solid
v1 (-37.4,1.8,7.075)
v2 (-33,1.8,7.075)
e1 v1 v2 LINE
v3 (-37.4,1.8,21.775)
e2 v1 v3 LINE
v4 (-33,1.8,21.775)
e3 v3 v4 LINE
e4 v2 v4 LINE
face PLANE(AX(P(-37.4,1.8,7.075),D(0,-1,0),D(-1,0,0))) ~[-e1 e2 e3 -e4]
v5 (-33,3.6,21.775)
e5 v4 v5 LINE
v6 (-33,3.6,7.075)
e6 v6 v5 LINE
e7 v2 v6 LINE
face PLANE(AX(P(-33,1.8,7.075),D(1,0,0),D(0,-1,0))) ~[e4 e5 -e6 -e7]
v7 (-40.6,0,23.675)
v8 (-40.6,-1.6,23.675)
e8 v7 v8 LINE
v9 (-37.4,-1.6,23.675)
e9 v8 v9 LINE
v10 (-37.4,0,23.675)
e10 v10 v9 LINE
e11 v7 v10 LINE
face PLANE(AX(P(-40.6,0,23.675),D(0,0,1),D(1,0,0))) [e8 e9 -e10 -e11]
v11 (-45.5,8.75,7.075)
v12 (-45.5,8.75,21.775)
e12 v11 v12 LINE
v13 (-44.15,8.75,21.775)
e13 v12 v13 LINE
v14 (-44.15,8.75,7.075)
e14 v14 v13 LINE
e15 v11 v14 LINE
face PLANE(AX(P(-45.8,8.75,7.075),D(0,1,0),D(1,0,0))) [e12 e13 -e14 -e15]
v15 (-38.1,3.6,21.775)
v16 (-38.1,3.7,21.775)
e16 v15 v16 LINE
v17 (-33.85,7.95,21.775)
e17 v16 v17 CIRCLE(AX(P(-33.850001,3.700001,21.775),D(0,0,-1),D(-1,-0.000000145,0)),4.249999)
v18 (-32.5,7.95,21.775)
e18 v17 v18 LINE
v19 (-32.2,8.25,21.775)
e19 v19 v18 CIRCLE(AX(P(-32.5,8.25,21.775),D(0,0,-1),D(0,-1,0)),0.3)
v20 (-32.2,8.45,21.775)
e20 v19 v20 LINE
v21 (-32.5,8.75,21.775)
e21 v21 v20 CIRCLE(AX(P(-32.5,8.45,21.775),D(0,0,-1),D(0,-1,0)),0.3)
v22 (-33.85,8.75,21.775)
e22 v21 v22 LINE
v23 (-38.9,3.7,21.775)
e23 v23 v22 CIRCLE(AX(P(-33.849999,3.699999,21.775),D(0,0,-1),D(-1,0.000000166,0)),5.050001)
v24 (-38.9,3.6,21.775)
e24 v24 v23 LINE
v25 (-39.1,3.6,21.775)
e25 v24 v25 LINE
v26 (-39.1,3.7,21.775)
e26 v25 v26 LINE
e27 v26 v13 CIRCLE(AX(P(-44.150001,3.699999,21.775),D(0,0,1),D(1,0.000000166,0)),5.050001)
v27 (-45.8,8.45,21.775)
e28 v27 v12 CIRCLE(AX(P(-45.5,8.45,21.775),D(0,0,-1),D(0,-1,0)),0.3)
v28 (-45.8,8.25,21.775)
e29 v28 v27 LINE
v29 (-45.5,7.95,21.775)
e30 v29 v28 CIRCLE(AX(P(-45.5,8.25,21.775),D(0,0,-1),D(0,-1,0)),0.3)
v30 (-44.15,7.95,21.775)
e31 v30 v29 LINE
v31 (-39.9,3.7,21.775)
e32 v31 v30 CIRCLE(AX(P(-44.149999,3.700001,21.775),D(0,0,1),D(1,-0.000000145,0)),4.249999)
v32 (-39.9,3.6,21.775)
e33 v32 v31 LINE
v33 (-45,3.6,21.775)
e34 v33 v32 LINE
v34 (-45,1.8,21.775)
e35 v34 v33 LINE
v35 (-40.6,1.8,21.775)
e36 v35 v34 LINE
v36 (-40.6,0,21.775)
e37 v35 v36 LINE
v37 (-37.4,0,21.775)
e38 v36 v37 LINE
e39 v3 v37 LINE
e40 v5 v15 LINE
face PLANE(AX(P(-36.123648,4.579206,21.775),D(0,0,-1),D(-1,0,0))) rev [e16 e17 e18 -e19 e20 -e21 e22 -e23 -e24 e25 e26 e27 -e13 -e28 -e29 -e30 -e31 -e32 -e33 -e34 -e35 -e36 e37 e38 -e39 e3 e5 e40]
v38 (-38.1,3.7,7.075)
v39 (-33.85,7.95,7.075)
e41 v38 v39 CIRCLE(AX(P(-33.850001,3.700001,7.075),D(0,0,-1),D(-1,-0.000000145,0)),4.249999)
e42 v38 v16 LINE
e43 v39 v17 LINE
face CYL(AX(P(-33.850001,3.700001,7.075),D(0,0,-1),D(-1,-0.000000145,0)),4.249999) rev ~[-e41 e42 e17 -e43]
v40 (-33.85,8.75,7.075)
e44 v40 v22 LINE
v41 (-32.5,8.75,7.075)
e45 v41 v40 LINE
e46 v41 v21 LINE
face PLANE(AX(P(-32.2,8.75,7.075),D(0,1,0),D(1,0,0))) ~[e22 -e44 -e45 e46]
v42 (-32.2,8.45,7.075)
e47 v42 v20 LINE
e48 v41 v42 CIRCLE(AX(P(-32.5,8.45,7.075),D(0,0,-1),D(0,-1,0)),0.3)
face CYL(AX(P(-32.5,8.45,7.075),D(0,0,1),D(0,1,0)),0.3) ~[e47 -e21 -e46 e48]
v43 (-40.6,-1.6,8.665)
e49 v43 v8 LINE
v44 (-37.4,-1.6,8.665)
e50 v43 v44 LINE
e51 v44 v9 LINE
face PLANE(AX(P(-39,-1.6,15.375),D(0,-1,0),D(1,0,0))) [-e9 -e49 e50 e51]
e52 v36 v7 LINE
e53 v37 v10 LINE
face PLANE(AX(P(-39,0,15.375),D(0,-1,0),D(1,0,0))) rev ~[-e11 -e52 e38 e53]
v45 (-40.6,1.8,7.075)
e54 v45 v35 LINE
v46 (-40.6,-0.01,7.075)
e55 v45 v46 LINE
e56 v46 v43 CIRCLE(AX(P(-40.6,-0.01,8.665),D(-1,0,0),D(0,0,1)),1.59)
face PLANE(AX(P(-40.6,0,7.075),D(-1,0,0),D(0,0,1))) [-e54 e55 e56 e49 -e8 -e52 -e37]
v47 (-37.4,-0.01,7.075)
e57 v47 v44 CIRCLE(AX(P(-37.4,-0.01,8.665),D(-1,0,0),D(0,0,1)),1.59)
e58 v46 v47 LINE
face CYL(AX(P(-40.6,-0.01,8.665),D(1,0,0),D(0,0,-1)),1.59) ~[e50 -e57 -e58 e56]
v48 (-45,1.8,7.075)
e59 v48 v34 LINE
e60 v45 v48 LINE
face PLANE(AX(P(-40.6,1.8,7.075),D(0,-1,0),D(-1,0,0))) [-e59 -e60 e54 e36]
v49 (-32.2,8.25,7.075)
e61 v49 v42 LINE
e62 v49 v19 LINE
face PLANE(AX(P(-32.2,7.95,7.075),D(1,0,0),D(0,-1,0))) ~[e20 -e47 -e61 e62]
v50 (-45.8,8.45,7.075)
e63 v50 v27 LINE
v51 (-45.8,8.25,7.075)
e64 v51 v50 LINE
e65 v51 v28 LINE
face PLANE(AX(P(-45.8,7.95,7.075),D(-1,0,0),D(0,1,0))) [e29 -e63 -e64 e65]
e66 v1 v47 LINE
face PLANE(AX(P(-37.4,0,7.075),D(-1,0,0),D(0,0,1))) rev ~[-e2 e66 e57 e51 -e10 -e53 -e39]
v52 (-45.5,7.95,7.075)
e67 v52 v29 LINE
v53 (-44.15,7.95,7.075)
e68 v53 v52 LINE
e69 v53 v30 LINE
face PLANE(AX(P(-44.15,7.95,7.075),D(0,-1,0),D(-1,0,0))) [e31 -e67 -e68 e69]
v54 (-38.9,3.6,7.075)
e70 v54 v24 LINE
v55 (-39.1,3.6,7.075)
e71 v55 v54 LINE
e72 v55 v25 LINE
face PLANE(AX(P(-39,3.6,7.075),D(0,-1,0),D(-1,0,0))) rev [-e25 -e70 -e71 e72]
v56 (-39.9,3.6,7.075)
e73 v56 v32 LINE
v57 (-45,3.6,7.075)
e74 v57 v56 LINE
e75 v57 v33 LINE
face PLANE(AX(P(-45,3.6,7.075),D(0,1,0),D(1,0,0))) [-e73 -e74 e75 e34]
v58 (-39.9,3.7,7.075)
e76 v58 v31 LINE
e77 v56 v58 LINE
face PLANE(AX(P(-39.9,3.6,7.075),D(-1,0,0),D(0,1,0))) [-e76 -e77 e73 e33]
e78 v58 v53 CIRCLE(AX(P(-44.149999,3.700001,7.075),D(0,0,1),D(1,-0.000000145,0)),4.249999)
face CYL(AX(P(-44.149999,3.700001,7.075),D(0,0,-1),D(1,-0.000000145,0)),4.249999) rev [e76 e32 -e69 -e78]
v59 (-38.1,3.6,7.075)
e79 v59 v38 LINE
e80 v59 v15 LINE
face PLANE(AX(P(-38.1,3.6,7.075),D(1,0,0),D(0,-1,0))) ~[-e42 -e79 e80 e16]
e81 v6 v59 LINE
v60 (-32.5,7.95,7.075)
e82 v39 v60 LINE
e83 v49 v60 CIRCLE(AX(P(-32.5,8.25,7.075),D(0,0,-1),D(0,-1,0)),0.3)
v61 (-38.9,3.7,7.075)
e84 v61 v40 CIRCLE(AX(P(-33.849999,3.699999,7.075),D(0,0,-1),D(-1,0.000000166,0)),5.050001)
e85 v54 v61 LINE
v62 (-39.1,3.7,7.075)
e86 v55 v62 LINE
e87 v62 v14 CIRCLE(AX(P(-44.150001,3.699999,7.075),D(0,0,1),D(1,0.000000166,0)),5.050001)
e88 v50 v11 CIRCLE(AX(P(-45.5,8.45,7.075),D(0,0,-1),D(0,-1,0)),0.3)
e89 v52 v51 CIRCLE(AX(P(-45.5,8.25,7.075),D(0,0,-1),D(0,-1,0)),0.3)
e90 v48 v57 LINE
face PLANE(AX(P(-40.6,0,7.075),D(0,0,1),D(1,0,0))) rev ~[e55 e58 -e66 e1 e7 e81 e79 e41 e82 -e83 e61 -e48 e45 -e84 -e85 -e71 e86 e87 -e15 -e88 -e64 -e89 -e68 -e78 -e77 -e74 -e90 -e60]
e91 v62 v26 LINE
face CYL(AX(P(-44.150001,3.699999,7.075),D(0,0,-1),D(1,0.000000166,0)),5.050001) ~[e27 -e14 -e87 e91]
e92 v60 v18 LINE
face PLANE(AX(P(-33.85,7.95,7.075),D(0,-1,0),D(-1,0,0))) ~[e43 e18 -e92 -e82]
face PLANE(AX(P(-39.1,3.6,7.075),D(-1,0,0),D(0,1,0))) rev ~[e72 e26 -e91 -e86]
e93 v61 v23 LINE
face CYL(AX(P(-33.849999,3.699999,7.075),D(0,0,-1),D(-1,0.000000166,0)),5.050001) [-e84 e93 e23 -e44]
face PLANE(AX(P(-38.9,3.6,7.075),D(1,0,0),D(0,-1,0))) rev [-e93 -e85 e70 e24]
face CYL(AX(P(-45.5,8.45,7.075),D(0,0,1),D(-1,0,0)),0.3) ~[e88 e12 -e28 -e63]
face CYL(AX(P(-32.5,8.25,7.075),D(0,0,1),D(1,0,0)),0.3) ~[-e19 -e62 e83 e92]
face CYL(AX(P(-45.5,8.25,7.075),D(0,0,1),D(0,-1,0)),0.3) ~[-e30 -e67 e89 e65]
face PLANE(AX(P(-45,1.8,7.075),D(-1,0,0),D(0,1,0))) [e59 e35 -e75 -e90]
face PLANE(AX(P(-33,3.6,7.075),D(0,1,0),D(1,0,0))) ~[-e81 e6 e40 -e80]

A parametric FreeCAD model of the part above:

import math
import FreeCAD as App
import Part
import Sketcher


def edges_at(feature, points):
    """Names of the edges that pass closest to the given points."""
    edges = feature.Shape.Edges
    near = lambda p: min(range(len(edges)), key=lambda i: edges[i].distToShape(Part.Vertex(*p))[0])
    return sorted({f"Edge{near(p) + 1}" for p in points})

doc = App.newDocument("Part")
body = doc.addObject("PartDesign::Body", "Body")

sketch1 = doc.addObject("Sketcher::SketchObject", "Sketch")
body.addObject(sketch1)
sketch1.AttachmentSupport = (doc.XY_Plane, [""])
sketch1.MapMode = "FlatFace"
sketch1.addGeometry([
    Part.LineSegment(App.Vector(-6, 0, 0), App.Vector(-1.6, 0, 0)),
    Part.LineSegment(App.Vector(-1.6, 0, 0), App.Vector(-1.6, -1.8, 0)),
    Part.LineSegment(App.Vector(-1.6, -1.8, 0), App.Vector(0, -1.8, 0)),
    Part.LineSegment(App.Vector(0, -1.8, 0), App.Vector(0, 1.8, 0)),
    Part.LineSegment(App.Vector(0, 1.8, 0), App.Vector(-0.1, 1.8, 0)),
    Part.LineSegment(App.Vector(-0.1, 1.8, 0), App.Vector(-0.1, 1.9, 0)),
    Part.ArcOfCircle(Part.Circle(App.Vector(-5.15, 1.9, 0), App.Vector(0, 0, 1), 5.05), math.radians(0), math.radians(90)),
    Part.LineSegment(App.Vector(-5.15, 6.95, 0), App.Vector(-6.8, 6.95, 0)),
    Part.LineSegment(App.Vector(-6.8, 6.95, 0), App.Vector(-6.8, 6.15, 0)),
    Part.LineSegment(App.Vector(-6.8, 6.15, 0), App.Vector(-5.15, 6.15, 0)),
    Part.ArcOfCircle(Part.Circle(App.Vector(-5.15, 1.9, 0), App.Vector(0, 0, 1), 4.25), math.radians(0), math.radians(90)),
    Part.LineSegment(App.Vector(-0.9, 1.9, 0), App.Vector(-0.9, 1.8, 0)),
    Part.LineSegment(App.Vector(-0.9, 1.8, 0), App.Vector(-6, 1.8, 0)),
    Part.LineSegment(App.Vector(-6, 1.8, 0), App.Vector(-6, 0, 0)),
], False)
sketch1.addConstraint([
    Sketcher.Constraint("Coincident", 0, 2, 1, 1),
    Sketcher.Constraint("Coincident", 1, 2, 2, 1),
    Sketcher.Constraint("Coincident", 2, 2, 3, 1),
    Sketcher.Constraint("Coincident", 3, 2, 4, 1),
    Sketcher.Constraint("Coincident", 4, 2, 5, 1),
    Sketcher.Constraint("Tangent", 5, 2, 6, 1),
    Sketcher.Constraint("Tangent", 6, 2, 7, 1),
    Sketcher.Constraint("Coincident", 7, 2, 8, 1),
    Sketcher.Constraint("Coincident", 8, 2, 9, 1),
    Sketcher.Constraint("Tangent", 9, 2, 10, 2),
    Sketcher.Constraint("Tangent", 10, 1, 11, 1),
    Sketcher.Constraint("Coincident", 11, 2, 12, 1),
    Sketcher.Constraint("Coincident", 12, 2, 13, 1),
    Sketcher.Constraint("Coincident", 13, 2, 0, 1),
    Sketcher.Constraint("Horizontal", 0),
    Sketcher.Constraint("Vertical", 1),
    Sketcher.Constraint("Horizontal", 2),
    Sketcher.Constraint("Vertical", 3),
    Sketcher.Constraint("Horizontal", 4),
    Sketcher.Constraint("Vertical", 5),
    Sketcher.Constraint("Horizontal", 7),
    Sketcher.Constraint("Vertical", 8),
    Sketcher.Constraint("Horizontal", 9),
    Sketcher.Constraint("Vertical", 11),
    Sketcher.Constraint("Horizontal", 12),
    Sketcher.Constraint("Vertical", 13),
    Sketcher.Constraint("Coincident", 10, 3, 6, 3),
    Sketcher.Constraint("Symmetric", 2, 2, 3, 2, -1, 1),
    Sketcher.Constraint("PointOnObject", 0, 2, -1),
    Sketcher.Constraint("Horizontal", 4, 2, 11, 2),
    Sketcher.Constraint("Equal", 4, 5),
    Sketcher.Constraint("Radius", 6, 5.050001),
    Sketcher.Constraint("Radius", 10, 4.249999),
    Sketcher.Constraint("DistanceX", 0, 1, 0, 2, 4.4),
    Sketcher.Constraint("DistanceX", 2, 1, 2, 2, 1.6),
    Sketcher.Constraint("DistanceX", 4, 2, 4, 1, 0.1),
    Sketcher.Constraint("DistanceY", 1, 2, 1, 1, 1.8),
    Sketcher.Constraint("DistanceX", 7, 2, 7, 1, 1.65),
])
pad1 = doc.addObject("PartDesign::Pad", "Pad")
body.addObject(pad1)
pad1.Profile = sketch1
pad1.Length = 14.7
doc.recompute()

mirrored = doc.addObject("PartDesign::Mirrored", "Mirrored")
body.addObject(mirrored)
mirrored.Originals = [pad1]
mirrored.MirrorPlane = (doc.YZ_Plane, [""])
body.Tip = mirrored
doc.recompute()

fillet = doc.addObject("PartDesign::Fillet", "Fillet")
body.addObject(fillet)
fillet.Base = (mirrored, edges_at(mirrored, [
    (6.8, 6.15, 7.35),
    (6.8, 6.95, 7.35),
    (-6.8, 6.95, 7.35),
    (-6.8, 6.15, 7.35),
]))
fillet.Radius = 0.3

sketch2 = doc.addObject("Sketcher::SketchObject", "Sketch001")
body.addObject(sketch2)
sketch2.AttachmentSupport = (doc.XZ_Plane, [""])
sketch2.MapMode = "FlatFace"
sketch2.AttachmentOffset = App.Placement(App.Vector(0, 0, 1.8), App.Rotation())
sketch2.addGeometry([
    Part.LineSegment(App.Vector(-1.6, 16.6, 0), App.Vector(-1.6, 0, 0)),
    Part.LineSegment(App.Vector(-1.6, 0, 0), App.Vector(1.6, 0, 0)),
    Part.LineSegment(App.Vector(1.6, 0, 0), App.Vector(1.6, 16.6, 0)),
    Part.LineSegment(App.Vector(1.6, 16.6, 0), App.Vector(-1.6, 16.6, 0)),
], False)
sketch2.addConstraint([
    Sketcher.Constraint("Coincident", 0, 2, 1, 1),
    Sketcher.Constraint("Coincident", 1, 2, 2, 1),
    Sketcher.Constraint("Coincident", 2, 2, 3, 1),
    Sketcher.Constraint("Coincident", 3, 2, 0, 1),
    Sketcher.Constraint("Vertical", 0),
    Sketcher.Constraint("Horizontal", 1),
    Sketcher.Constraint("Vertical", 2),
    Sketcher.Constraint("Horizontal", 3),
    Sketcher.Constraint("Symmetric", 0, 2, 1, 2, -1, 1),
    Sketcher.Constraint("DistanceX", 1, 1, 1, 2, 3.2),
    Sketcher.Constraint("DistanceY", 0, 2, 0, 1, 16.6),
])
pad2 = doc.addObject("PartDesign::Pad", "Pad001")
body.addObject(pad2)
pad2.Profile = sketch2
pad2.Length = 1.6
doc.recompute()

fillet2 = doc.addObject("PartDesign::Fillet", "Fillet001")
body.addObject(fillet2)
fillet2.Base = (pad2, edges_at(pad2, [(0, -3.4, 0)]))
fillet2.Radius = 1.59
body2 = doc.addObject("PartDesign::Body", "Body001")
doc.recompute()

body.Placement = App.Placement(App.Vector(-39, 1.8, 7.075), App.Rotation(App.Vector(0, 0, 1), 0))
boolean = doc.addObject("PartDesign::Boolean", "Boolean")
body2.addObject(boolean)
boolean.Type = "Fuse"
boolean.addObjects([body])

doc.recompute()
